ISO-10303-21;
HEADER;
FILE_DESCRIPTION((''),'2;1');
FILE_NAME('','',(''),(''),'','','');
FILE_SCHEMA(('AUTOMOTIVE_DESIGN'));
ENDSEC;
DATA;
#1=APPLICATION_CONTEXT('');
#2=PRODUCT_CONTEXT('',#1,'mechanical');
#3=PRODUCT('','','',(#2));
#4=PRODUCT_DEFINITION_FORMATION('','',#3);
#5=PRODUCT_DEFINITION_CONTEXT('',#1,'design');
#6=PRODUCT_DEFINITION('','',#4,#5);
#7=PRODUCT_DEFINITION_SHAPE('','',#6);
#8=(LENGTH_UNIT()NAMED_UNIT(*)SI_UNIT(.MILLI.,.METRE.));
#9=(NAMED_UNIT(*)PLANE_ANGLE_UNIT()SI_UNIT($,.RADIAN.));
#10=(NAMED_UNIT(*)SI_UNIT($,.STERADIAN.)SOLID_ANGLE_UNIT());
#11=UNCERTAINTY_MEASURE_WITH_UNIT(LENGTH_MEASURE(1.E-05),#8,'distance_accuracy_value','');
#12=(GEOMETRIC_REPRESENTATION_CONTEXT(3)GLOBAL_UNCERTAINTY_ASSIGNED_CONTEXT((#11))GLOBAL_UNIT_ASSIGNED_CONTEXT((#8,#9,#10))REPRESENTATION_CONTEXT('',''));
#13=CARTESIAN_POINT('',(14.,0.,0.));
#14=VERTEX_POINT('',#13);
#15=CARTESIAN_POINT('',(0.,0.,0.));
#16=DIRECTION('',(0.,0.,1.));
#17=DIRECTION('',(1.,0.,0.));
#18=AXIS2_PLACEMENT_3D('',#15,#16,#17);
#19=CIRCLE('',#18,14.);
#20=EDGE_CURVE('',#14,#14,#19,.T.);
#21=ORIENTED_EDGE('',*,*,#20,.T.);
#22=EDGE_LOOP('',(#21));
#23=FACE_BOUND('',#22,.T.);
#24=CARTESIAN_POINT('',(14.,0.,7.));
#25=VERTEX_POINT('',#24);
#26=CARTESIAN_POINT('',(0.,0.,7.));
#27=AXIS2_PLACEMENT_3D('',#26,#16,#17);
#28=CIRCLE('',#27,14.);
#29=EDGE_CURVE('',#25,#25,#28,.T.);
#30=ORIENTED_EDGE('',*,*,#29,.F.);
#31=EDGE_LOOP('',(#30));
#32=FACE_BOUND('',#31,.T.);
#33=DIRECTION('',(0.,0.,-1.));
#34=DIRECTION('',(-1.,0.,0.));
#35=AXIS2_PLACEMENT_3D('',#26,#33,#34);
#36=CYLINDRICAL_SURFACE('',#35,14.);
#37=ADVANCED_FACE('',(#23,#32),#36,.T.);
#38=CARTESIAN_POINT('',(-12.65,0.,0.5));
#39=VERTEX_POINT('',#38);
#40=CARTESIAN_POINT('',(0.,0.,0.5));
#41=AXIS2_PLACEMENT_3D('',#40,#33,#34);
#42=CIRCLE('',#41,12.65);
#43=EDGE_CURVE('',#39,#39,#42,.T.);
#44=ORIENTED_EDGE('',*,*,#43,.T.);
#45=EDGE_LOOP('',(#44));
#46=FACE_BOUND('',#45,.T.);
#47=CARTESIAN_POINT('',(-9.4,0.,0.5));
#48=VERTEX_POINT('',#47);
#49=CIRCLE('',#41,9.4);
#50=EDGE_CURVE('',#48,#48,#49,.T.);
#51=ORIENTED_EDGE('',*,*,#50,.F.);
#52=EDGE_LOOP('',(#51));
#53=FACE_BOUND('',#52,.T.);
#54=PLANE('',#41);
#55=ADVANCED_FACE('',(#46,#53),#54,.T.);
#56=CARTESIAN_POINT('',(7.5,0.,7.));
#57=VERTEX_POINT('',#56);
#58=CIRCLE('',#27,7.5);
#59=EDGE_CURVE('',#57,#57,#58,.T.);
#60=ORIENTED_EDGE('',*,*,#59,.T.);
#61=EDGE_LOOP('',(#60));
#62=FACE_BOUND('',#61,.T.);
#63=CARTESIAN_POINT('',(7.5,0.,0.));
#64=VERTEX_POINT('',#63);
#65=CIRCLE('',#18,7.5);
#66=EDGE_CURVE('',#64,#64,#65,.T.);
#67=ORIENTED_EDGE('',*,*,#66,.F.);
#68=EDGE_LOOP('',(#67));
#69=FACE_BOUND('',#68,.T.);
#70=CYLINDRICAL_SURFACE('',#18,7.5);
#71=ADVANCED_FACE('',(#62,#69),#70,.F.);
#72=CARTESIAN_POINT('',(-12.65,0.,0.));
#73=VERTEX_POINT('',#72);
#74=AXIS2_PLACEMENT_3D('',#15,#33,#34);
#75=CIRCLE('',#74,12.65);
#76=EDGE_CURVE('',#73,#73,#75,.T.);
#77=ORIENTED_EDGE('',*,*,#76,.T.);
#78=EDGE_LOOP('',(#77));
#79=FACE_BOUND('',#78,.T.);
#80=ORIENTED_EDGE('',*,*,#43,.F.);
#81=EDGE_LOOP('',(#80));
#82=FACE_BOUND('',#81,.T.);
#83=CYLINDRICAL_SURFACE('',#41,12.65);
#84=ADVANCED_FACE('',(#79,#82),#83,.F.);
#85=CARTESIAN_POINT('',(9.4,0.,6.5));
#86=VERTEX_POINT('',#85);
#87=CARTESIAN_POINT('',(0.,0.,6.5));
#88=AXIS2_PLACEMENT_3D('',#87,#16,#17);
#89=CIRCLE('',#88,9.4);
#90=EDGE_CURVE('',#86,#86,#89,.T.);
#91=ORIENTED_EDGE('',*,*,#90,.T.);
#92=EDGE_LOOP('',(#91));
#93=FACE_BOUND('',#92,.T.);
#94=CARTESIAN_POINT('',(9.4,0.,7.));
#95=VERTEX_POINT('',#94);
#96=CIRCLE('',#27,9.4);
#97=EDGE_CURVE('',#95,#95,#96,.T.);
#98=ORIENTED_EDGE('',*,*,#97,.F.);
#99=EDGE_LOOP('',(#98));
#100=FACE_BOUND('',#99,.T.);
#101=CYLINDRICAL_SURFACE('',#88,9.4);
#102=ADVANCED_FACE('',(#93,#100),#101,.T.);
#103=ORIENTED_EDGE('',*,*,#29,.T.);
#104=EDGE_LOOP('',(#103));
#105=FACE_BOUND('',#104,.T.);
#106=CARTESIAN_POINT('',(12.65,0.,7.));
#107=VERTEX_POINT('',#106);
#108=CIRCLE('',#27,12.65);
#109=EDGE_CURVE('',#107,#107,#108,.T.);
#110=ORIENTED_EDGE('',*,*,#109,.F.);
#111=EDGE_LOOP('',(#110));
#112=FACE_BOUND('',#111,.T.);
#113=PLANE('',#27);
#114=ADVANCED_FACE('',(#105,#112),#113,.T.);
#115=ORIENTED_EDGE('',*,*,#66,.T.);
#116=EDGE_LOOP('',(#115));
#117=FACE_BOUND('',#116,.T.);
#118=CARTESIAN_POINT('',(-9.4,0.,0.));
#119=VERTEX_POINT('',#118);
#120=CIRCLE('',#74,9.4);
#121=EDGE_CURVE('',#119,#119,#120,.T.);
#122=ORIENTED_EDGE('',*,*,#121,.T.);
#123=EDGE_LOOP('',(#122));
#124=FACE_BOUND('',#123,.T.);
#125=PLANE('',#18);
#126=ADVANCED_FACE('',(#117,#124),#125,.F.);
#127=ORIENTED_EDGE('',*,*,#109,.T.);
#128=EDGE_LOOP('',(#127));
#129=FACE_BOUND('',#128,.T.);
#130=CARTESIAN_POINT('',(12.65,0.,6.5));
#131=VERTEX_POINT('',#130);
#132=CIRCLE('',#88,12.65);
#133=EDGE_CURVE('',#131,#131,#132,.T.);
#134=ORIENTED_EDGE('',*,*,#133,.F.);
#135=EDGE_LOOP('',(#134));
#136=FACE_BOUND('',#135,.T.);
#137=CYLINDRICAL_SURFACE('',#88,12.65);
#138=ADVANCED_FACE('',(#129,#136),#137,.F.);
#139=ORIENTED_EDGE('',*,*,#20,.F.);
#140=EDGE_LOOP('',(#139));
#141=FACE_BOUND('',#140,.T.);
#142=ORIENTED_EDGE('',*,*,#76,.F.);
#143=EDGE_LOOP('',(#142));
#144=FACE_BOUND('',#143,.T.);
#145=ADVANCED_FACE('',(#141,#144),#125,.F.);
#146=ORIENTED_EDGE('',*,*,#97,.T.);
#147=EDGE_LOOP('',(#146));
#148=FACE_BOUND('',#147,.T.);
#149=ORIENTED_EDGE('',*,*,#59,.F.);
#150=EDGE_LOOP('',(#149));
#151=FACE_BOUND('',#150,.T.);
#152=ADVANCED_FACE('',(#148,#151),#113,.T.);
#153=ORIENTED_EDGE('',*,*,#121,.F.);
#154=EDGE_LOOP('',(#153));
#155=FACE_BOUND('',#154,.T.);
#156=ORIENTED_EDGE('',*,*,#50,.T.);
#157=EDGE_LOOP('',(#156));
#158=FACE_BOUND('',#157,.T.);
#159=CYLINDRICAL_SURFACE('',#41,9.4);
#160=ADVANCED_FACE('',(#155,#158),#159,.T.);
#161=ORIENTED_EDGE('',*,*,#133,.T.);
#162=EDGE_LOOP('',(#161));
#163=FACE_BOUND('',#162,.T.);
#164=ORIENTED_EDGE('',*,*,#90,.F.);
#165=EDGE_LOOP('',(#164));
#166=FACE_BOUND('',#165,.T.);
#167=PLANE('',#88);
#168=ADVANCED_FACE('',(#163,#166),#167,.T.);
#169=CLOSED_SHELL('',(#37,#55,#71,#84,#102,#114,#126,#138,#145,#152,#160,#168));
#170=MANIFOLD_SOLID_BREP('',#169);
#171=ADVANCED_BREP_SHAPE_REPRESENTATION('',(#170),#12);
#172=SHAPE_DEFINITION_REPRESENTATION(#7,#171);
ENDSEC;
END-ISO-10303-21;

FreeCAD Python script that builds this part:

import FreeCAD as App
import Part
import Sketcher

doc = App.newDocument("Part")
body = doc.addObject("PartDesign::Body", "Body")

# Sketch on XY plane
sketch1 = body.newObject("Sketcher::SketchObject", "Sketch")
sketch1.AttachmentSupport = (doc.getObject("XY_Plane"), [""])
sketch1.MapMode = "FlatFace"
sketch1.addGeometry(Part.Circle(App.Vector(0, 0, 0), App.Vector(0, 0, 1), 14), False)
sketch1.addConstraint([
    Sketcher.Constraint("Coincident", 0, 3, -1, 1),
    Sketcher.Constraint("Diameter", 0, 28.0),
])
pad1 = body.newObject("PartDesign::Pad", "Pad")
pad1.Profile = sketch1
pad1.Length = 7

# Sketch on XY plane
sketch2 = body.newObject("Sketcher::SketchObject", "Sketch001")
sketch2.AttachmentSupport = (doc.getObject("XY_Plane"), [""])
sketch2.MapMode = "FlatFace"
sketch2.AttachmentOffset = App.Placement(App.Vector(0, 0, 7), App.Rotation())
sketch2.addGeometry(Part.Circle(App.Vector(0, 0, 0), App.Vector(0, 0, 1), 7.5), False)
sketch2.addConstraint([
    Sketcher.Constraint("Coincident", 0, 3, -1, 1),
    Sketcher.Constraint("Diameter", 0, 15.0),
])
pocket1 = body.newObject("PartDesign::Pocket", "Pocket")
pocket1.Profile = sketch2
pocket1.Type = "ThroughAll"

# Sketch on XY plane
sketch3 = body.newObject("Sketcher::SketchObject", "Sketch002")
sketch3.AttachmentSupport = (doc.getObject("XY_Plane"), [""])
sketch3.MapMode = "FlatFace"
sketch3.AttachmentOffset = App.Placement(App.Vector(0, 0, 7), App.Rotation())
sketch3.addGeometry([
    Part.Circle(App.Vector(0, 0, 0), App.Vector(0, 0, 1), 12.65),
    Part.Circle(App.Vector(0, 0, 0), App.Vector(0, 0, 1), 9.4),
], False)
sketch3.addConstraint([
    Sketcher.Constraint("Coincident", 0, 3, -1, 1),
    Sketcher.Constraint("Coincident", 1, 3, -1, 1),
    Sketcher.Constraint("Diameter", 0, 25.3),
    Sketcher.Constraint("Diameter", 1, 18.8),
])
pocket2 = body.newObject("PartDesign::Pocket", "Pocket001")
pocket2.Profile = sketch3
pocket2.Length = 0.5

# Sketch on XY plane
sketch4 = body.newObject("Sketcher::SketchObject", "Sketch003")
sketch4.AttachmentSupport = (doc.getObject("XY_Plane"), [""])
sketch4.MapMode = "FlatFace"
sketch4.addGeometry([
    Part.Circle(App.Vector(0, 0, 0), App.Vector(0, 0, 1), 12.65),
    Part.Circle(App.Vector(0, 0, 0), App.Vector(0, 0, 1), 9.4),
], False)
sketch4.addConstraint([
    Sketcher.Constraint("Coincident", 0, 3, -1, 1),
    Sketcher.Constraint("Coincident", 1, 3, -1, 1),
    Sketcher.Constraint("Diameter", 0, 25.3),
    Sketcher.Constraint("Diameter", 1, 18.8),
])
pocket3 = body.newObject("PartDesign::Pocket", "Pocket002")
pocket3.Profile = sketch4
pocket3.Length = 0.5
pocket3.Reversed = True

doc.recompute()
